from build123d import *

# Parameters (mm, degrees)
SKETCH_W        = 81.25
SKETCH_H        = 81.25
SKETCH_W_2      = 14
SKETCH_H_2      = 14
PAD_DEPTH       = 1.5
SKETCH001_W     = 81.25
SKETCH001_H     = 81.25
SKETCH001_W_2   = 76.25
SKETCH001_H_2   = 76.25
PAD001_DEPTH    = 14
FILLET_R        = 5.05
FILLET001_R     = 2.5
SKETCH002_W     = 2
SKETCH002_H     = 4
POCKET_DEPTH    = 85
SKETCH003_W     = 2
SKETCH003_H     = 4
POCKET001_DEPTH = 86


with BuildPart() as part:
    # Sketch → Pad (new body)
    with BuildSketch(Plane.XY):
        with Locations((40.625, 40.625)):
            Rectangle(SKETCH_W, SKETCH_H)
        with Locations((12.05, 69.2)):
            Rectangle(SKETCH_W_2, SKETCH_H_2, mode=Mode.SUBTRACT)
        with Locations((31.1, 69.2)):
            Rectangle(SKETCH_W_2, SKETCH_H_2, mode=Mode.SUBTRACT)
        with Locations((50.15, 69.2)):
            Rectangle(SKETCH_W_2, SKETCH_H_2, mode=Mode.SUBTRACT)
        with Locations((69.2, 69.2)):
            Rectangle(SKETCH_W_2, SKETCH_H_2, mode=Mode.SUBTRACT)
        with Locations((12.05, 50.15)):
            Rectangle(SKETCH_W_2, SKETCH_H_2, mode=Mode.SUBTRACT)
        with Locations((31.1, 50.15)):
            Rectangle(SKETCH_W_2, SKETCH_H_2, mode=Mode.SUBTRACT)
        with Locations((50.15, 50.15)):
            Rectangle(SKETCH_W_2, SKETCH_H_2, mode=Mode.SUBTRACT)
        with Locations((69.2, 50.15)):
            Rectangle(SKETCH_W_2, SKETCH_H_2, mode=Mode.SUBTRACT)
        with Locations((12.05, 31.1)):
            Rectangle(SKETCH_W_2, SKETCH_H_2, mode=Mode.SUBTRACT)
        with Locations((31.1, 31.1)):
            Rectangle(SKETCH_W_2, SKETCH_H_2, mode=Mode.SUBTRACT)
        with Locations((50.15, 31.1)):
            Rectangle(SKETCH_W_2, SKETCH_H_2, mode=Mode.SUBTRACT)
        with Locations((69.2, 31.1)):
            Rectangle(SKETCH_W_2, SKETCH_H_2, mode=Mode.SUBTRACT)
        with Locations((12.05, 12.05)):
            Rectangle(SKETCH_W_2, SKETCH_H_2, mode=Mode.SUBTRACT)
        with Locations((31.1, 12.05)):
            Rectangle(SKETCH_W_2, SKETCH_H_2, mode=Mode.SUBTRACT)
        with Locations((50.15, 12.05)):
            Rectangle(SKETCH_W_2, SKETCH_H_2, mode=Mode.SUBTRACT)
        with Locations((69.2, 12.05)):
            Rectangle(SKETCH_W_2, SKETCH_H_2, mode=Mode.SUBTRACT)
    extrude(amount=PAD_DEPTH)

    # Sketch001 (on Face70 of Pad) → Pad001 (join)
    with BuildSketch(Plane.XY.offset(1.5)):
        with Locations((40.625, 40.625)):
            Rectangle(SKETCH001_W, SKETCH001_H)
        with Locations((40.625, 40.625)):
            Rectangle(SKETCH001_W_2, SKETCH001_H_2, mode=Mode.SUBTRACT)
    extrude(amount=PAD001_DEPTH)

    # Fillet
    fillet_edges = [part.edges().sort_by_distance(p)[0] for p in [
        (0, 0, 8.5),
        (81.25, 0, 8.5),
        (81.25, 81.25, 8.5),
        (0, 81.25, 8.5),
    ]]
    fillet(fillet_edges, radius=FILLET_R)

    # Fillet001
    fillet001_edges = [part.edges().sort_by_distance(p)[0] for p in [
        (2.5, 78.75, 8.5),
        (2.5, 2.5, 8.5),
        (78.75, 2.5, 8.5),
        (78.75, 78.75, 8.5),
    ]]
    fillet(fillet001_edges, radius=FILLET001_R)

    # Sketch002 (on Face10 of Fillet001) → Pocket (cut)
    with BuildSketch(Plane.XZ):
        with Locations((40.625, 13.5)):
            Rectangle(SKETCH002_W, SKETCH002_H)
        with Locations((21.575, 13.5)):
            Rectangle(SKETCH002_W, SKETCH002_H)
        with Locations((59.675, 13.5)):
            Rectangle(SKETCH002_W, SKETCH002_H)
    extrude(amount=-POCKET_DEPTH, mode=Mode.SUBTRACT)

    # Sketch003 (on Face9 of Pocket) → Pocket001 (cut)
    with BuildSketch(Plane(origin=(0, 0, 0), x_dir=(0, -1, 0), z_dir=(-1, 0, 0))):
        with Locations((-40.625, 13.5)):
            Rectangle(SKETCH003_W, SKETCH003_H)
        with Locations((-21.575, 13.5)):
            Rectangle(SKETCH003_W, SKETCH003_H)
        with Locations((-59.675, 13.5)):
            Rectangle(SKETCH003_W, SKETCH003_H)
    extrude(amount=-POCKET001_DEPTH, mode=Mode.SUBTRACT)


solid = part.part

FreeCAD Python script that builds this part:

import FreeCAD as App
import Part
import Sketcher
from FreeCAD import Vector
Q = App.Units.Quantity


def edges_at(feature, points):
    """Names of the edges that pass closest to the given points."""
    edges = feature.Shape.Edges
    near = lambda p: min(range(len(edges)), key=lambda i: edges[i].distToShape(Part.Vertex(*p))[0])
    return sorted({f"Edge{near(p) + 1}" for p in points})

doc = App.newDocument("Part")
body = doc.addObject("PartDesign::Body", "Body")

# Sketch on XY plane
sketch1 = doc.addObject("Sketcher::SketchObject", "Sketch")
body.addObject(sketch1)
sketch1.AttachmentSupport = (doc.XY_Plane, [""])
sketch1.MapMode = "FlatFace"
sketch1.addGeometry(Part.LineSegment(Vector(0, 81, 0), Vector(0, 0, 0)), False)
sketch1.addGeometry(Part.LineSegment(Vector(0, 0, 0), Vector(81, 0, 0)), False)
sketch1.addGeometry(Part.LineSegment(Vector(81, 0, 0), Vector(81, 81, 0)), False)
sketch1.addGeometry(Part.LineSegment(Vector(81, 81, 0), Vector(0, 81, 0)), False)
sketch1.addGeometry(Part.LineSegment(Vector(19, 5, 0), Vector(5, 5, 0)), False)
sketch1.addGeometry(Part.LineSegment(Vector(5, 5, 0), Vector(5, 19, 0)), False)
sketch1.addGeometry(Part.LineSegment(Vector(5, 19, 0), Vector(19, 19, 0)), False)
sketch1.addGeometry(Part.LineSegment(Vector(19, 19, 0), Vector(19, 5, 0)), False)
sketch1.addGeometry(Part.LineSegment(Vector(38, 5, 0), Vector(24, 5, 0)), False)
sketch1.addGeometry(Part.LineSegment(Vector(24, 5, 0), Vector(24, 19, 0)), False)
sketch1.addGeometry(Part.LineSegment(Vector(24, 19, 0), Vector(38, 19, 0)), False)
sketch1.addGeometry(Part.LineSegment(Vector(38, 19, 0), Vector(38, 5, 0)), False)
sketch1.addGeometry(Part.LineSegment(Vector(19, 24, 0), Vector(5, 24, 0)), False)
sketch1.addGeometry(Part.LineSegment(Vector(5, 24, 0), Vector(5, 38, 0)), False)
sketch1.addGeometry(Part.LineSegment(Vector(5, 38, 0), Vector(19, 38, 0)), False)
sketch1.addGeometry(Part.LineSegment(Vector(19, 38, 0), Vector(19, 24, 0)), False)
sketch1.addGeometry(Part.LineSegment(Vector(38, 24, 0), Vector(24, 24, 0)), False)
sketch1.addGeometry(Part.LineSegment(Vector(24, 24, 0), Vector(24, 38, 0)), False)
sketch1.addGeometry(Part.LineSegment(Vector(24, 38, 0), Vector(38, 38, 0)), False)
sketch1.addGeometry(Part.LineSegment(Vector(38, 38, 0), Vector(38, 24, 0)), False)
sketch1.addGeometry(Part.LineSegment(Vector(57, 5, 0), Vector(43, 5, 0)), False)
sketch1.addGeometry(Part.LineSegment(Vector(43, 5, 0), Vector(43, 19, 0)), False)
sketch1.addGeometry(Part.LineSegment(Vector(43, 19, 0), Vector(57, 19, 0)), False)
sketch1.addGeometry(Part.LineSegment(Vector(57, 19, 0), Vector(57, 5, 0)), False)
sketch1.addGeometry(Part.LineSegment(Vector(76, 5, 0), Vector(62, 5, 0)), False)
sketch1.addGeometry(Part.LineSegment(Vector(62, 5, 0), Vector(62, 19, 0)), False)
sketch1.addGeometry(Part.LineSegment(Vector(62, 19, 0), Vector(76, 19, 0)), False)
sketch1.addGeometry(Part.LineSegment(Vector(76, 19, 0), Vector(76, 5, 0)), False)
sketch1.addGeometry(Part.LineSegment(Vector(57, 24, 0), Vector(43, 24, 0)), False)
sketch1.addGeometry(Part.LineSegment(Vector(43, 24, 0), Vector(43, 38, 0)), False)
sketch1.addGeometry(Part.LineSegment(Vector(43, 38, 0), Vector(57, 38, 0)), False)
sketch1.addGeometry(Part.LineSegment(Vector(57, 38, 0), Vector(57, 24, 0)), False)
sketch1.addGeometry(Part.LineSegment(Vector(76, 24, 0), Vector(62, 24, 0)), False)
sketch1.addGeometry(Part.LineSegment(Vector(62, 24, 0), Vector(62, 38, 0)), False)
sketch1.addGeometry(Part.LineSegment(Vector(62, 38, 0), Vector(76, 38, 0)), False)
sketch1.addGeometry(Part.LineSegment(Vector(76, 38, 0), Vector(76, 24, 0)), False)
sketch1.addGeometry(Part.LineSegment(Vector(19, 43, 0), Vector(5, 43, 0)), False)
sketch1.addGeometry(Part.LineSegment(Vector(5, 43, 0), Vector(5, 57, 0)), False)
sketch1.addGeometry(Part.LineSegment(Vector(5, 57, 0), Vector(19, 57, 0)), False)
sketch1.addGeometry(Part.LineSegment(Vector(19, 57, 0), Vector(19, 43, 0)), False)
sketch1.addGeometry(Part.LineSegment(Vector(38, 43, 0), Vector(24, 43, 0)), False)
sketch1.addGeometry(Part.LineSegment(Vector(24, 43, 0), Vector(24, 57, 0)), False)
sketch1.addGeometry(Part.LineSegment(Vector(24, 57, 0), Vector(38, 57, 0)), False)
sketch1.addGeometry(Part.LineSegment(Vector(38, 57, 0), Vector(38, 43, 0)), False)
sketch1.addGeometry(Part.LineSegment(Vector(19, 62, 0), Vector(5, 62, 0)), False)
sketch1.addGeometry(Part.LineSegment(Vector(5, 62, 0), Vector(5, 76, 0)), False)
sketch1.addGeometry(Part.LineSegment(Vector(5, 76, 0), Vector(19, 76, 0)), False)
sketch1.addGeometry(Part.LineSegment(Vector(19, 76, 0), Vector(19, 62, 0)), False)
sketch1.addGeometry(Part.LineSegment(Vector(38, 62, 0), Vector(24, 62, 0)), False)
sketch1.addGeometry(Part.LineSegment(Vector(24, 62, 0), Vector(24, 76, 0)), False)
sketch1.addGeometry(Part.LineSegment(Vector(24, 76, 0), Vector(38, 76, 0)), False)
sketch1.addGeometry(Part.LineSegment(Vector(38, 76, 0), Vector(38, 62, 0)), False)
sketch1.addGeometry(Part.LineSegment(Vector(57, 43, 0), Vector(43, 43, 0)), False)
sketch1.addGeometry(Part.LineSegment(Vector(43, 43, 0), Vector(43, 57, 0)), False)
sketch1.addGeometry(Part.LineSegment(Vector(43, 57, 0), Vector(57, 57, 0)), False)
sketch1.addGeometry(Part.LineSegment(Vector(57, 57, 0), Vector(57, 43, 0)), False)
sketch1.addGeometry(Part.LineSegment(Vector(76, 43, 0), Vector(62, 43, 0)), False)
sketch1.addGeometry(Part.LineSegment(Vector(62, 43, 0), Vector(62, 57, 0)), False)
sketch1.addGeometry(Part.LineSegment(Vector(62, 57, 0), Vector(76, 57, 0)), False)
sketch1.addGeometry(Part.LineSegment(Vector(76, 57, 0), Vector(76, 43, 0)), False)
sketch1.addGeometry(Part.LineSegment(Vector(57, 62, 0), Vector(43, 62, 0)), False)
sketch1.addGeometry(Part.LineSegment(Vector(43, 62, 0), Vector(43, 76, 0)), False)
sketch1.addGeometry(Part.LineSegment(Vector(43, 76, 0), Vector(57, 76, 0)), False)
sketch1.addGeometry(Part.LineSegment(Vector(57, 76, 0), Vector(57, 62, 0)), False)
sketch1.addGeometry(Part.LineSegment(Vector(76, 62, 0), Vector(62, 62, 0)), False)
sketch1.addGeometry(Part.LineSegment(Vector(62, 62, 0), Vector(62, 76, 0)), False)
sketch1.addGeometry(Part.LineSegment(Vector(62, 76, 0), Vector(76, 76, 0)), False)
sketch1.addGeometry(Part.LineSegment(Vector(76, 76, 0), Vector(76, 62, 0)), False)
sketch1.addConstraint(Sketcher.Constraint("Coincident", 0, 2, 1, 1))
sketch1.addConstraint(Sketcher.Constraint("Coincident", 1, 2, 2, 1))
sketch1.addConstraint(Sketcher.Constraint("Coincident", 2, 2, 3, 1))
sketch1.addConstraint(Sketcher.Constraint("Coincident", 3, 2, 0, 1))
sketch1.addConstraint(Sketcher.Constraint("Coincident", 4, 2, 5, 1))
sketch1.addConstraint(Sketcher.Constraint("Coincident", 5, 2, 6, 1))
sketch1.addConstraint(Sketcher.Constraint("Coincident", 6, 2, 7, 1))
sketch1.addConstraint(Sketcher.Constraint("Coincident", 7, 2, 4, 1))
sketch1.addConstraint(Sketcher.Constraint("Coincident", 8, 2, 9, 1))
sketch1.addConstraint(Sketcher.Constraint("Coincident", 9, 2, 10, 1))
sketch1.addConstraint(Sketcher.Constraint("Coincident", 10, 2, 11, 1))
sketch1.addConstraint(Sketcher.Constraint("Coincident", 11, 2, 8, 1))
sketch1.addConstraint(Sketcher.Constraint("Coincident", 12, 2, 13, 1))
sketch1.addConstraint(Sketcher.Constraint("Coincident", 13, 2, 14, 1))
sketch1.addConstraint(Sketcher.Constraint("Coincident", 14, 2, 15, 1))
sketch1.addConstraint(Sketcher.Constraint("Coincident", 15, 2, 12, 1))
sketch1.addConstraint(Sketcher.Constraint("Coincident", 16, 2, 17, 1))
sketch1.addConstraint(Sketcher.Constraint("Coincident", 17, 2, 18, 1))
sketch1.addConstraint(Sketcher.Constraint("Coincident", 18, 2, 19, 1))
sketch1.addConstraint(Sketcher.Constraint("Coincident", 19, 2, 16, 1))
sketch1.addConstraint(Sketcher.Constraint("Coincident", 20, 2, 21, 1))
sketch1.addConstraint(Sketcher.Constraint("Coincident", 21, 2, 22, 1))
sketch1.addConstraint(Sketcher.Constraint("Coincident", 22, 2, 23, 1))
sketch1.addConstraint(Sketcher.Constraint("Coincident", 23, 2, 20, 1))
sketch1.addConstraint(Sketcher.Constraint("Coincident", 24, 2, 25, 1))
sketch1.addConstraint(Sketcher.Constraint("Coincident", 25, 2, 26, 1))
sketch1.addConstraint(Sketcher.Constraint("Coincident", 26, 2, 27, 1))
sketch1.addConstraint(Sketcher.Constraint("Coincident", 27, 2, 24, 1))
sketch1.addConstraint(Sketcher.Constraint("Coincident", 28, 2, 29, 1))
sketch1.addConstraint(Sketcher.Constraint("Coincident", 29, 2, 30, 1))
sketch1.addConstraint(Sketcher.Constraint("Coincident", 30, 2, 31, 1))
sketch1.addConstraint(Sketcher.Constraint("Coincident", 31, 2, 28, 1))
sketch1.addConstraint(Sketcher.Constraint("Coincident", 32, 2, 33, 1))
sketch1.addConstraint(Sketcher.Constraint("Coincident", 33, 2, 34, 1))
sketch1.addConstraint(Sketcher.Constraint("Coincident", 34, 2, 35, 1))
sketch1.addConstraint(Sketcher.Constraint("Coincident", 35, 2, 32, 1))
sketch1.addConstraint(Sketcher.Constraint("Coincident", 36, 2, 37, 1))
sketch1.addConstraint(Sketcher.Constraint("Coincident", 37, 2, 38, 1))
sketch1.addConstraint(Sketcher.Constraint("Coincident", 38, 2, 39, 1))
sketch1.addConstraint(Sketcher.Constraint("Coincident", 39, 2, 36, 1))
sketch1.addConstraint(Sketcher.Constraint("Coincident", 40, 2, 41, 1))
sketch1.addConstraint(Sketcher.Constraint("Coincident", 41, 2, 42, 1))
sketch1.addConstraint(Sketcher.Constraint("Coincident", 42, 2, 43, 1))
sketch1.addConstraint(Sketcher.Constraint("Coincident", 43, 2, 40, 1))
sketch1.addConstraint(Sketcher.Constraint("Coincident", 44, 2, 45, 1))
sketch1.addConstraint(Sketcher.Constraint("Coincident", 45, 2, 46, 1))
sketch1.addConstraint(Sketcher.Constraint("Coincident", 46, 2, 47, 1))
sketch1.addConstraint(Sketcher.Constraint("Coincident", 47, 2, 44, 1))
sketch1.addConstraint(Sketcher.Constraint("Coincident", 48, 2, 49, 1))
sketch1.addConstraint(Sketcher.Constraint("Coincident", 49, 2, 50, 1))
sketch1.addConstraint(Sketcher.Constraint("Coincident", 50, 2, 51, 1))
sketch1.addConstraint(Sketcher.Constraint("Coincident", 51, 2, 48, 1))
sketch1.addConstraint(Sketcher.Constraint("Coincident", 52, 2, 53, 1))
sketch1.addConstraint(Sketcher.Constraint("Coincident", 53, 2, 54, 1))
sketch1.addConstraint(Sketcher.Constraint("Coincident", 54, 2, 55, 1))
sketch1.addConstraint(Sketcher.Constraint("Coincident", 55, 2, 52, 1))
sketch1.addConstraint(Sketcher.Constraint("Coincident", 56, 2, 57, 1))
sketch1.addConstraint(Sketcher.Constraint("Coincident", 57, 2, 58, 1))
sketch1.addConstraint(Sketcher.Constraint("Coincident", 58, 2, 59, 1))
sketch1.addConstraint(Sketcher.Constraint("Coincident", 59, 2, 56, 1))
sketch1.addConstraint(Sketcher.Constraint("Coincident", 60, 2, 61, 1))
sketch1.addConstraint(Sketcher.Constraint("Coincident", 61, 2, 62, 1))
sketch1.addConstraint(Sketcher.Constraint("Coincident", 62, 2, 63, 1))
sketch1.addConstraint(Sketcher.Constraint("Coincident", 63, 2, 60, 1))
sketch1.addConstraint(Sketcher.Constraint("Coincident", 64, 2, 65, 1))
sketch1.addConstraint(Sketcher.Constraint("Coincident", 65, 2, 66, 1))
sketch1.addConstraint(Sketcher.Constraint("Coincident", 66, 2, 67, 1))
sketch1.addConstraint(Sketcher.Constraint("Coincident", 67, 2, 64, 1))
sketch1.addConstraint(Sketcher.Constraint("Vertical", 0))
sketch1.addConstraint(Sketcher.Constraint("Horizontal", 1))
sketch1.addConstraint(Sketcher.Constraint("Vertical", 2))
sketch1.addConstraint(Sketcher.Constraint("Horizontal", 3))
sketch1.addConstraint(Sketcher.Constraint("Horizontal", 4))
sketch1.addConstraint(Sketcher.Constraint("Vertical", 5))
sketch1.addConstraint(Sketcher.Constraint("Horizontal", 6))
sketch1.addConstraint(Sketcher.Constraint("Vertical", 7))
sketch1.addConstraint(Sketcher.Constraint("Horizontal", 8))
sketch1.addConstraint(Sketcher.Constraint("Vertical", 9))
sketch1.addConstraint(Sketcher.Constraint("Horizontal", 10))
sketch1.addConstraint(Sketcher.Constraint("Vertical", 11))
sketch1.addConstraint(Sketcher.Constraint("Horizontal", 12))
sketch1.addConstraint(Sketcher.Constraint("Vertical", 13))
sketch1.addConstraint(Sketcher.Constraint("Horizontal", 14))
sketch1.addConstraint(Sketcher.Constraint("Vertical", 15))
sketch1.addConstraint(Sketcher.Constraint("Horizontal", 16))
sketch1.addConstraint(Sketcher.Constraint("Vertical", 17))
sketch1.addConstraint(Sketcher.Constraint("Horizontal", 18))
sketch1.addConstraint(Sketcher.Constraint("Vertical", 19))
sketch1.addConstraint(Sketcher.Constraint("Horizontal", 20))
sketch1.addConstraint(Sketcher.Constraint("Vertical", 21))
sketch1.addConstraint(Sketcher.Constraint("Horizontal", 22))
sketch1.addConstraint(Sketcher.Constraint("Vertical", 23))
sketch1.addConstraint(Sketcher.Constraint("Horizontal", 24))
sketch1.addConstraint(Sketcher.Constraint("Vertical", 25))
sketch1.addConstraint(Sketcher.Constraint("Horizontal", 26))
sketch1.addConstraint(Sketcher.Constraint("Vertical", 27))
sketch1.addConstraint(Sketcher.Constraint("Horizontal", 28))
sketch1.addConstraint(Sketcher.Constraint("Vertical", 29))
sketch1.addConstraint(Sketcher.Constraint("Horizontal", 30))
sketch1.addConstraint(Sketcher.Constraint("Vertical", 31))
sketch1.addConstraint(Sketcher.Constraint("Horizontal", 32))
sketch1.addConstraint(Sketcher.Constraint("Vertical", 33))
sketch1.addConstraint(Sketcher.Constraint("Horizontal", 34))
sketch1.addConstraint(Sketcher.Constraint("Vertical", 35))
sketch1.addConstraint(Sketcher.Constraint("Horizontal", 36))
sketch1.addConstraint(Sketcher.Constraint("Vertical", 37))
sketch1.addConstraint(Sketcher.Constraint("Horizontal", 38))
sketch1.addConstraint(Sketcher.Constraint("Vertical", 39))
sketch1.addConstraint(Sketcher.Constraint("Horizontal", 40))
sketch1.addConstraint(Sketcher.Constraint("Vertical", 41))
sketch1.addConstraint(Sketcher.Constraint("Horizontal", 42))
sketch1.addConstraint(Sketcher.Constraint("Vertical", 43))
sketch1.addConstraint(Sketcher.Constraint("Horizontal", 44))
sketch1.addConstraint(Sketcher.Constraint("Vertical", 45))
sketch1.addConstraint(Sketcher.Constraint("Horizontal", 46))
sketch1.addConstraint(Sketcher.Constraint("Vertical", 47))
sketch1.addConstraint(Sketcher.Constraint("Horizontal", 48))
sketch1.addConstraint(Sketcher.Constraint("Vertical", 49))
sketch1.addConstraint(Sketcher.Constraint("Horizontal", 50))
sketch1.addConstraint(Sketcher.Constraint("Vertical", 51))
sketch1.addConstraint(Sketcher.Constraint("Horizontal", 52))
sketch1.addConstraint(Sketcher.Constraint("Vertical", 53))
sketch1.addConstraint(Sketcher.Constraint("Horizontal", 54))
sketch1.addConstraint(Sketcher.Constraint("Vertical", 55))
sketch1.addConstraint(Sketcher.Constraint("Horizontal", 56))
sketch1.addConstraint(Sketcher.Constraint("Vertical", 57))
sketch1.addConstraint(Sketcher.Constraint("Horizontal", 58))
sketch1.addConstraint(Sketcher.Constraint("Vertical", 59))
sketch1.addConstraint(Sketcher.Constraint("Horizontal", 60))
sketch1.addConstraint(Sketcher.Constraint("Vertical", 61))
sketch1.addConstraint(Sketcher.Constraint("Horizontal", 62))
sketch1.addConstraint(Sketcher.Constraint("Vertical", 63))
sketch1.addConstraint(Sketcher.Constraint("Horizontal", 64))
sketch1.addConstraint(Sketcher.Constraint("Vertical", 65))
sketch1.addConstraint(Sketcher.Constraint("Horizontal", 66))
sketch1.addConstraint(Sketcher.Constraint("Vertical", 67))
sketch1.addConstraint(Sketcher.Constraint("Coincident", 0, 2, -1, 1))
sketch1.addConstraint(Sketcher.Constraint("Horizontal", 7, 2, 8, 2))
sketch1.addConstraint(Sketcher.Constraint("Horizontal", 6, 2, 9, 2))
sketch1.addConstraint(Sketcher.Constraint("Horizontal", 15, 2, 16, 2))
sketch1.addConstraint(Sketcher.Constraint("Horizontal", 14, 2, 17, 2))
sketch1.addConstraint(Sketcher.Constraint("Horizontal", 11, 2, 20, 2))
sketch1.addConstraint(Sketcher.Constraint("Horizontal", 10, 2, 21, 2))
sketch1.addConstraint(Sketcher.Constraint("Horizontal", 23, 2, 24, 2))
sketch1.addConstraint(Sketcher.Constraint("Horizontal", 22, 2, 25, 2))
sketch1.addConstraint(Sketcher.Constraint("Horizontal", 19, 2, 28, 2))
sketch1.addConstraint(Sketcher.Constraint("Horizontal", 18, 2, 29, 2))
sketch1.addConstraint(Sketcher.Constraint("Horizontal", 31, 2, 32, 2))
sketch1.addConstraint(Sketcher.Constraint("Horizontal", 30, 2, 33, 2))
sketch1.addConstraint(Sketcher.Constraint("Horizontal", 39, 2, 40, 2))
sketch1.addConstraint(Sketcher.Constraint("Horizontal", 38, 2, 41, 2))
sketch1.addConstraint(Sketcher.Constraint("Horizontal", 47, 2, 48, 2))
sketch1.addConstraint(Sketcher.Constraint("Horizontal", 46, 2, 49, 2))
sketch1.addConstraint(Sketcher.Constraint("Horizontal", 43, 2, 52, 2))
sketch1.addConstraint(Sketcher.Constraint("Horizontal", 42, 2, 53, 2))
sketch1.addConstraint(Sketcher.Constraint("Horizontal", 55, 2, 56, 2))
sketch1.addConstraint(Sketcher.Constraint("Horizontal", 54, 2, 57, 2))
sketch1.addConstraint(Sketcher.Constraint("Horizontal", 51, 2, 60, 2))
sketch1.addConstraint(Sketcher.Constraint("Horizontal", 50, 2, 61, 2))
sketch1.addConstraint(Sketcher.Constraint("Horizontal", 63, 2, 64, 2))
sketch1.addConstraint(Sketcher.Constraint("Horizontal", 62, 2, 65, 2))
sketch1.addConstraint(Sketcher.Constraint("Vertical", 5, 2, 12, 2))
sketch1.addConstraint(Sketcher.Constraint("Vertical", 7, 2, 14, 2))
sketch1.addConstraint(Sketcher.Constraint("Vertical", 9, 2, 16, 2))
sketch1.addConstraint(Sketcher.Constraint("Vertical", 11, 2, 18, 2))
sketch1.addConstraint(Sketcher.Constraint("Vertical", 21, 2, 28, 2))
sketch1.addConstraint(Sketcher.Constraint("Vertical", 23, 2, 30, 2))
sketch1.addConstraint(Sketcher.Constraint("Vertical", 25, 2, 32, 2))
sketch1.addConstraint(Sketcher.Constraint("Vertical", 27, 2, 34, 2))
sketch1.addConstraint(Sketcher.Constraint("Vertical", 13, 2, 36, 2))
sketch1.addConstraint(Sketcher.Constraint("Vertical", 15, 2, 38, 2))
sketch1.addConstraint(Sketcher.Constraint("Vertical", 17, 2, 40, 2))
sketch1.addConstraint(Sketcher.Constraint("Vertical", 19, 2, 42, 2))
sketch1.addConstraint(Sketcher.Constraint("Vertical", 37, 2, 44, 2))
sketch1.addConstraint(Sketcher.Constraint("Vertical", 39, 2, 46, 2))
sketch1.addConstraint(Sketcher.Constraint("Vertical", 41, 2, 48, 2))
sketch1.addConstraint(Sketcher.Constraint("Vertical", 43, 2, 50, 2))
sketch1.addConstraint(Sketcher.Constraint("Vertical", 29, 2, 52, 2))
sketch1.addConstraint(Sketcher.Constraint("Vertical", 31, 2, 54, 2))
sketch1.addConstraint(Sketcher.Constraint("Vertical", 33, 2, 56, 2))
sketch1.addConstraint(Sketcher.Constraint("Vertical", 35, 2, 58, 2))
sketch1.addConstraint(Sketcher.Constraint("Vertical", 53, 2, 60, 2))
sketch1.addConstraint(Sketcher.Constraint("Vertical", 55, 2, 62, 2))
sketch1.addConstraint(Sketcher.Constraint("Vertical", 57, 2, 64, 2))
sketch1.addConstraint(Sketcher.Constraint("Vertical", 59, 2, 66, 2))
sketch1.addConstraint(Sketcher.Constraint("Equal", 6, 8))
sketch1.addConstraint(Sketcher.Constraint("Equal", 18, 20))
sketch1.addConstraint(Sketcher.Constraint("Equal", 22, 24))
sketch1.addConstraint(Sketcher.Constraint("Equal", 3, 0))
sketch1.addConstraint(Sketcher.Constraint("Equal", 66, 5))
sketch1.addConstraint(Sketcher.Constraint("Equal", 11, 13))
sketch1.addConstraint(Sketcher.Constraint("Equal", 35, 37))
sketch1.addConstraint(Sketcher.Constraint("Equal", 43, 45))
sketch1.addConstraint(Sketcher.Constraint("DistanceX", 4, 2, 4, 1, Q("14 mm")))
sketch1.addConstraint(Sketcher.Constraint("DistanceX", 1, 1, 1, 2, Q("81.25 mm")))
sketch1.addConstraint(Sketcher.Constraint("DistanceX", -1, 1, 8, 2, Q("24.1 mm")))
sketch1.addConstraint(Sketcher.Constraint("DistanceY", -1, 1, 12, 2, Q("24.1 mm")))
sketch1.addConstraint(Sketcher.Constraint("DistanceX", -1, 1, 24, 2, Q("62.2 mm")))
sketch1.addConstraint(Sketcher.Constraint("DistanceY", -1, 1, 44, 2, Q("62.2 mm")))
sketch1.addConstraint(Sketcher.Constraint("DistanceX", -1, 1, 4, 2, Q("5.05 mm")))
sketch1.addConstraint(Sketcher.Constraint("DistanceY", -1, 1, 4, 2, Q("5.05 mm")))
sketch1.addConstraint(Sketcher.Constraint("DistanceX", -1, 1, 20, 2, Q("43.15 mm")))
sketch1.addConstraint(Sketcher.Constraint("DistanceY", -1, 1, 36, 2, Q("43.15 mm")))
pad1 = doc.addObject("PartDesign::Pad", "Pad")
body.addObject(pad1)
pad1.Profile = sketch1
pad1.Length = 1.5

# Sketch on XY plane
sketch2 = doc.addObject("Sketcher::SketchObject", "Sketch001")
body.addObject(sketch2)
sketch2.AttachmentSupport = (doc.XY_Plane, [""])
sketch2.MapMode = "FlatFace"
sketch2.AttachmentOffset = App.Placement(Vector(0, 0, 1.5), App.Rotation())
sketch2.addGeometry(Part.LineSegment(Vector(0, 81, 0), Vector(0, 0, 0)), False)
sketch2.addGeometry(Part.LineSegment(Vector(0, 0, 0), Vector(81, 0, 0)), False)
sketch2.addGeometry(Part.LineSegment(Vector(81, 0, 0), Vector(81, 81, 0)), False)
sketch2.addGeometry(Part.LineSegment(Vector(81, 81, 0), Vector(0, 81, 0)), False)
sketch2.addGeometry(Part.LineSegment(Vector(79, 2, 0), Vector(2, 2, 0)), False)
sketch2.addGeometry(Part.LineSegment(Vector(2, 2, 0), Vector(2, 79, 0)), False)
sketch2.addGeometry(Part.LineSegment(Vector(2, 79, 0), Vector(79, 79, 0)), False)
sketch2.addGeometry(Part.LineSegment(Vector(79, 79, 0), Vector(79, 2, 0)), False)
sketch2.addConstraint(Sketcher.Constraint("Coincident", 0, 2, 1, 1))
sketch2.addConstraint(Sketcher.Constraint("Coincident", 1, 2, 2, 1))
sketch2.addConstraint(Sketcher.Constraint("Coincident", 2, 2, 3, 1))
sketch2.addConstraint(Sketcher.Constraint("Coincident", 3, 2, 0, 1))
sketch2.addConstraint(Sketcher.Constraint("Coincident", 4, 2, 5, 1))
sketch2.addConstraint(Sketcher.Constraint("Coincident", 5, 2, 6, 1))
sketch2.addConstraint(Sketcher.Constraint("Coincident", 6, 2, 7, 1))
sketch2.addConstraint(Sketcher.Constraint("Coincident", 7, 2, 4, 1))
sketch2.addConstraint(Sketcher.Constraint("Vertical", 0))
sketch2.addConstraint(Sketcher.Constraint("Horizontal", 1))
sketch2.addConstraint(Sketcher.Constraint("Vertical", 2))
sketch2.addConstraint(Sketcher.Constraint("Horizontal", 3))
sketch2.addConstraint(Sketcher.Constraint("Horizontal", 4))
sketch2.addConstraint(Sketcher.Constraint("Vertical", 5))
sketch2.addConstraint(Sketcher.Constraint("Horizontal", 6))
sketch2.addConstraint(Sketcher.Constraint("Vertical", 7))
sketch2.addConstraint(Sketcher.Constraint("Coincident", 0, 2, -1, 1))
sketch2.addConstraint(Sketcher.Constraint("Equal", 3, 0))
sketch2.addConstraint(Sketcher.Constraint("Equal", 6, 5))
sketch2.addConstraint(Sketcher.Constraint("DistanceX", 1, 1, 1, 2, Q("81.25 mm")))
sketch2.addConstraint(Sketcher.Constraint("DistanceX", 4, 2, 4, 1, Q("76.25 mm")))
sketch2.addConstraint(Sketcher.Constraint("DistanceX", -1, 1, 4, 2, Q("2.5 mm")))
sketch2.addConstraint(Sketcher.Constraint("DistanceY", -1, 1, 4, 2, Q("2.5 mm")))
pad2 = doc.addObject("PartDesign::Pad", "Pad001")
body.addObject(pad2)
pad2.Profile = sketch2
pad2.Length = 14
doc.recompute()

fillet = doc.addObject("PartDesign::Fillet", "Fillet")
body.addObject(fillet)
fillet.Base = (pad2, edges_at(pad2, [
    (0, 0, 7.75),
    (81.25, 0, 7.75),
    (81.25, 81.25, 7.75),
    (0, 81.25, 7.75),
]))
fillet.Radius = 5.05
doc.recompute()

fillet2 = doc.addObject("PartDesign::Fillet", "Fillet001")
body.addObject(fillet2)
fillet2.Base = (fillet, edges_at(fillet, [
    (2.5, 78.75, 8.5),
    (2.5, 2.5, 8.5),
    (78.75, 2.5, 8.5),
    (78.75, 78.75, 8.5),
]))
fillet2.Radius = 2.5

# Sketch on XZ plane
sketch3 = doc.addObject("Sketcher::SketchObject", "Sketch002")
body.addObject(sketch3)
sketch3.AttachmentSupport = (doc.XZ_Plane, [""])
sketch3.MapMode = "FlatFace"
sketch3.addGeometry(Part.LineSegment(Vector(39.6, 15.5, 0), Vector(39.6, 11.5, 0)), False)
sketch3.addGeometry(Part.LineSegment(Vector(39.6, 11.5, 0), Vector(41.6, 11.5, 0)), False)
sketch3.addGeometry(Part.LineSegment(Vector(41.6, 11.5, 0), Vector(41.6, 15.5, 0)), False)
sketch3.addGeometry(Part.LineSegment(Vector(41.6, 15.5, 0), Vector(39.6, 15.5, 0)), False)
sketch3.addGeometry(Part.LineSegment(Vector(20.6, 15.5, 0), Vector(20.6, 11.5, 0)), False)
sketch3.addGeometry(Part.LineSegment(Vector(20.6, 11.5, 0), Vector(22.6, 11.5, 0)), False)
sketch3.addGeometry(Part.LineSegment(Vector(22.6, 11.5, 0), Vector(22.6, 15.5, 0)), False)
sketch3.addGeometry(Part.LineSegment(Vector(22.6, 15.5, 0), Vector(20.6, 15.5, 0)), False)
sketch3.addGeometry(Part.LineSegment(Vector(58.7, 15.5, 0), Vector(58.7, 11.5, 0)), False)
sketch3.addGeometry(Part.LineSegment(Vector(58.7, 11.5, 0), Vector(60.7, 11.5, 0)), False)
sketch3.addGeometry(Part.LineSegment(Vector(60.7, 11.5, 0), Vector(60.7, 15.5, 0)), False)
sketch3.addGeometry(Part.LineSegment(Vector(60.7, 15.5, 0), Vector(58.7, 15.5, 0)), False)
sketch3.addConstraint(Sketcher.Constraint("Coincident", 0, 2, 1, 1))
sketch3.addConstraint(Sketcher.Constraint("Coincident", 1, 2, 2, 1))
sketch3.addConstraint(Sketcher.Constraint("Coincident", 2, 2, 3, 1))
sketch3.addConstraint(Sketcher.Constraint("Coincident", 3, 2, 0, 1))
sketch3.addConstraint(Sketcher.Constraint("Coincident", 4, 2, 5, 1))
sketch3.addConstraint(Sketcher.Constraint("Coincident", 5, 2, 6, 1))
sketch3.addConstraint(Sketcher.Constraint("Coincident", 6, 2, 7, 1))
sketch3.addConstraint(Sketcher.Constraint("Coincident", 7, 2, 4, 1))
sketch3.addConstraint(Sketcher.Constraint("Coincident", 8, 2, 9, 1))
sketch3.addConstraint(Sketcher.Constraint("Coincident", 9, 2, 10, 1))
sketch3.addConstraint(Sketcher.Constraint("Coincident", 10, 2, 11, 1))
sketch3.addConstraint(Sketcher.Constraint("Coincident", 11, 2, 8, 1))
sketch3.addConstraint(Sketcher.Constraint("Vertical", 0))
sketch3.addConstraint(Sketcher.Constraint("Horizontal", 1))
sketch3.addConstraint(Sketcher.Constraint("Vertical", 2))
sketch3.addConstraint(Sketcher.Constraint("Horizontal", 3))
sketch3.addConstraint(Sketcher.Constraint("Vertical", 4))
sketch3.addConstraint(Sketcher.Constraint("Horizontal", 5))
sketch3.addConstraint(Sketcher.Constraint("Vertical", 6))
sketch3.addConstraint(Sketcher.Constraint("Horizontal", 7))
sketch3.addConstraint(Sketcher.Constraint("Vertical", 8))
sketch3.addConstraint(Sketcher.Constraint("Horizontal", 9))
sketch3.addConstraint(Sketcher.Constraint("Vertical", 10))
sketch3.addConstraint(Sketcher.Constraint("Horizontal", 11))
sketch3.addConstraint(Sketcher.Constraint("Horizontal", 1, 2, 4, 2))
sketch3.addConstraint(Sketcher.Constraint("Horizontal", 3, 2, 6, 2))
sketch3.addConstraint(Sketcher.Constraint("Horizontal", 5, 2, 8, 2))
sketch3.addConstraint(Sketcher.Constraint("Horizontal", 7, 2, 10, 2))
sketch3.addConstraint(Sketcher.Constraint("Equal", 3, 5))
sketch3.addConstraint(Sketcher.Constraint("Equal", 7, 9))
sketch3.addConstraint(Sketcher.Constraint("DistanceX", 1, 1, 1, 2, Q("2 mm")))
sketch3.addConstraint(Sketcher.Constraint("DistanceY", 0, 2, 0, 1, Q("4 mm")))
sketch3.addConstraint(Sketcher.Constraint("DistanceY", -1, 1, 0, 2, Q("11.5 mm")))
sketch3.addConstraint(Sketcher.Constraint("DistanceX", 5, 2, 8, 2, Q("36.1 mm")))
sketch3.addConstraint(Sketcher.Constraint("DistanceX", 4, 2, 0, 2, Q("19.05 mm")))
sketch3.addConstraint(Sketcher.Constraint("DistanceX", -1, 1, 0, 2, Q("39.625 mm")))
pocket1 = doc.addObject("PartDesign::Pocket", "Pocket")
body.addObject(pocket1)
pocket1.Profile = sketch3
pocket1.Length = 85

# Sketch on YZ plane
sketch4 = doc.addObject("Sketcher::SketchObject", "Sketch003")
body.addObject(sketch4)
sketch4.AttachmentSupport = (doc.YZ_Plane, [""])
sketch4.MapMode = "FlatFace"
sketch4.addGeometry(Part.LineSegment(Vector(41.6, 15.5, 0), Vector(41.6, 11.5, 0)), False)
sketch4.addGeometry(Part.LineSegment(Vector(41.6, 11.5, 0), Vector(39.6, 11.5, 0)), False)
sketch4.addGeometry(Part.LineSegment(Vector(39.6, 11.5, 0), Vector(39.6, 15.5, 0)), False)
sketch4.addGeometry(Part.LineSegment(Vector(39.6, 15.5, 0), Vector(41.6, 15.5, 0)), False)
sketch4.addGeometry(Part.LineSegment(Vector(22.6, 15.5, 0), Vector(22.6, 11.5, 0)), False)
sketch4.addGeometry(Part.LineSegment(Vector(22.6, 11.5, 0), Vector(20.6, 11.5, 0)), False)
sketch4.addGeometry(Part.LineSegment(Vector(20.6, 11.5, 0), Vector(20.6, 15.5, 0)), False)
sketch4.addGeometry(Part.LineSegment(Vector(20.6, 15.5, 0), Vector(22.6, 15.5, 0)), False)
sketch4.addGeometry(Part.LineSegment(Vector(60.7, 15.5, 0), Vector(60.7, 11.5, 0)), False)
sketch4.addGeometry(Part.LineSegment(Vector(60.7, 11.5, 0), Vector(58.7, 11.5, 0)), False)
sketch4.addGeometry(Part.LineSegment(Vector(58.7, 11.5, 0), Vector(58.7, 15.5, 0)), False)
sketch4.addGeometry(Part.LineSegment(Vector(58.7, 15.5, 0), Vector(60.7, 15.5, 0)), False)
sketch4.addConstraint(Sketcher.Constraint("Coincident", 0, 2, 1, 1))
sketch4.addConstraint(Sketcher.Constraint("Coincident", 1, 2, 2, 1))
sketch4.addConstraint(Sketcher.Constraint("Coincident", 2, 2, 3, 1))
sketch4.addConstraint(Sketcher.Constraint("Coincident", 3, 2, 0, 1))
sketch4.addConstraint(Sketcher.Constraint("Coincident", 4, 2, 5, 1))
sketch4.addConstraint(Sketcher.Constraint("Coincident", 5, 2, 6, 1))
sketch4.addConstraint(Sketcher.Constraint("Coincident", 6, 2, 7, 1))
sketch4.addConstraint(Sketcher.Constraint("Coincident", 7, 2, 4, 1))
sketch4.addConstraint(Sketcher.Constraint("Coincident", 8, 2, 9, 1))
sketch4.addConstraint(Sketcher.Constraint("Coincident", 9, 2, 10, 1))
sketch4.addConstraint(Sketcher.Constraint("Coincident", 10, 2, 11, 1))
sketch4.addConstraint(Sketcher.Constraint("Coincident", 11, 2, 8, 1))
sketch4.addConstraint(Sketcher.Constraint("Vertical", 0))
sketch4.addConstraint(Sketcher.Constraint("Horizontal", 1))
sketch4.addConstraint(Sketcher.Constraint("Vertical", 2))
sketch4.addConstraint(Sketcher.Constraint("Horizontal", 3))
sketch4.addConstraint(Sketcher.Constraint("Vertical", 4))
sketch4.addConstraint(Sketcher.Constraint("Horizontal", 5))
sketch4.addConstraint(Sketcher.Constraint("Vertical", 6))
sketch4.addConstraint(Sketcher.Constraint("Horizontal", 7))
sketch4.addConstraint(Sketcher.Constraint("Vertical", 8))
sketch4.addConstraint(Sketcher.Constraint("Horizontal", 9))
sketch4.addConstraint(Sketcher.Constraint("Vertical", 10))
sketch4.addConstraint(Sketcher.Constraint("Horizontal", 11))
sketch4.addConstraint(Sketcher.Constraint("Horizontal", 1, 2, 4, 2))
sketch4.addConstraint(Sketcher.Constraint("Horizontal", 3, 2, 6, 2))
sketch4.addConstraint(Sketcher.Constraint("Horizontal", 5, 2, 8, 2))
sketch4.addConstraint(Sketcher.Constraint("Horizontal", 7, 2, 10, 2))
sketch4.addConstraint(Sketcher.Constraint("Equal", 3, 5))
sketch4.addConstraint(Sketcher.Constraint("Equal", 7, 9))
sketch4.addConstraint(Sketcher.Constraint("DistanceX", 1, 2, 1, 1, Q("2 mm")))
sketch4.addConstraint(Sketcher.Constraint("DistanceY", 0, 2, 0, 1, Q("4 mm")))
sketch4.addConstraint(Sketcher.Constraint("DistanceY", -1, 1, 0, 2, Q("11.5 mm")))
sketch4.addConstraint(Sketcher.Constraint("DistanceX", 4, 2, 8, 2, Q("38.1 mm")))
sketch4.addConstraint(Sketcher.Constraint("DistanceX", 4, 2, 1, 2, Q("17.05 mm")))
sketch4.addConstraint(Sketcher.Constraint("DistanceX", -1, 1, 0, 2, Q("41.625 mm")))
pocket2 = doc.addObject("PartDesign::Pocket", "Pocket001")
body.addObject(pocket2)
pocket2.Profile = sketch4
pocket2.Length = 86
pocket2.Reversed = True

doc.recompute()
